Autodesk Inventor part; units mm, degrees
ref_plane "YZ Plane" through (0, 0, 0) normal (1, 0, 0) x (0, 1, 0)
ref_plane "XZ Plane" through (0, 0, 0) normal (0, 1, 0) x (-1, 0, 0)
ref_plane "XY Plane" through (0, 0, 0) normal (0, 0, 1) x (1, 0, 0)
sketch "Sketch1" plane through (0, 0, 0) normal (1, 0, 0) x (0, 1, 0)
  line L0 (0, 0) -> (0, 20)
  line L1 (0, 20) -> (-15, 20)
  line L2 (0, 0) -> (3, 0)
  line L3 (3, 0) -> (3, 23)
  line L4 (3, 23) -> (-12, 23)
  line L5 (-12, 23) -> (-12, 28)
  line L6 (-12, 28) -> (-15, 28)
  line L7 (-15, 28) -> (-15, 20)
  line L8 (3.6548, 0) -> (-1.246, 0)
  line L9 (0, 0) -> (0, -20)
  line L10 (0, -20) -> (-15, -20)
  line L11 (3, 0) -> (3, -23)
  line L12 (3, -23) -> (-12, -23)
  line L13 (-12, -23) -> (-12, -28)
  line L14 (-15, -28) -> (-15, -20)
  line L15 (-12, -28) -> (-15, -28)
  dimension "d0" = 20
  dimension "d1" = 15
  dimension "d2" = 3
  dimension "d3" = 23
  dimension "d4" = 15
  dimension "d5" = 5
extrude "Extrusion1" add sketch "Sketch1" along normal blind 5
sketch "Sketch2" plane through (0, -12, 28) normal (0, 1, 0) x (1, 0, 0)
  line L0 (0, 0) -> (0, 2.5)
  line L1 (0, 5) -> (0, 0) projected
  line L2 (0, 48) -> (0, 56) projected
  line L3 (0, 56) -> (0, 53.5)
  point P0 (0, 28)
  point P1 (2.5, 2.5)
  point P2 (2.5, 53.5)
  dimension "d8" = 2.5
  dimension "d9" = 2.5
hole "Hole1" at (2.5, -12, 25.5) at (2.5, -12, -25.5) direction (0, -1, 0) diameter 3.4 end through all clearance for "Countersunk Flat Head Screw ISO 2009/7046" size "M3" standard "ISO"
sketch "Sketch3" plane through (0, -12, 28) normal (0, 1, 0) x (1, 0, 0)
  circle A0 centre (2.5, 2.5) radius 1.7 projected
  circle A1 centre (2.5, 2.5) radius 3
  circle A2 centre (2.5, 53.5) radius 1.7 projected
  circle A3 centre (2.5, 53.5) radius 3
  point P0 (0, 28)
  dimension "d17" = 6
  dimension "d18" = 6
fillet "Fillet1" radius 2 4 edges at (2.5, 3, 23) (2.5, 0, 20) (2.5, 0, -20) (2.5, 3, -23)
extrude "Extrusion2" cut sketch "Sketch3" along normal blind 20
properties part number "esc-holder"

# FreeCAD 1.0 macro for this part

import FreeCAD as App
import Part
import Sketcher
from FreeCAD import Vector
Q = App.Units.Quantity


def edges_at(feature, points):
    """Names of the edges that pass closest to the given points."""
    edges = feature.Shape.Edges
    near = lambda p: min(range(len(edges)), key=lambda i: edges[i].distToShape(Part.Vertex(*p))[0])
    return sorted({f"Edge{near(p) + 1}" for p in points})


def add_polygon(sketch, points):
    """Adds a closed chain of lines whose ends are joined by coincident constraints."""
    first, n = sketch.GeometryCount, len(points)
    for a, b in zip(points, points[1:] + points[:1]):
        sketch.addGeometry(Part.LineSegment(App.Vector(*a, 0), App.Vector(*b, 0)), False)
    for i in range(n):
        sketch.addConstraint(Sketcher.Constraint("Coincident", first + i, 2, first + (i + 1) % n, 1))

doc = App.newDocument("Part")
body = doc.addObject("PartDesign::Body", "Body")

# Sketch on YZ plane
sketch1 = body.newObject("Sketcher::SketchObject", "Sketch")
sketch1.AttachmentSupport = (doc.getObject("YZ_Plane"), [""])
sketch1.MapMode = "FlatFace"
add_polygon(sketch1, [(0, 20), (0, -20), (-15, -20), (-15, -28), (-12, -28), (-12, -23), (3, -23), (3, 23), (-12, 23), (-12, 28), (-15, 28), (-15, 20)])  # lines 0-11
sketch1.addConstraint(Sketcher.Constraint("Vertical", 0))
sketch1.addConstraint(Sketcher.Constraint("Horizontal", 1))
sketch1.addConstraint(Sketcher.Constraint("Vertical", 2))
sketch1.addConstraint(Sketcher.Constraint("Horizontal", 3))
sketch1.addConstraint(Sketcher.Constraint("Vertical", 4))
sketch1.addConstraint(Sketcher.Constraint("Horizontal", 5))
sketch1.addConstraint(Sketcher.Constraint("Vertical", 6))
sketch1.addConstraint(Sketcher.Constraint("Horizontal", 7))
sketch1.addConstraint(Sketcher.Constraint("Vertical", 8))
sketch1.addConstraint(Sketcher.Constraint("Horizontal", 9))
sketch1.addConstraint(Sketcher.Constraint("Vertical", 10))
sketch1.addConstraint(Sketcher.Constraint("Horizontal", 11))
sketch1.addConstraint(Sketcher.Constraint("Symmetric", 0, 2, 11, 2, -1, 1))
sketch1.addConstraint(Sketcher.Constraint("Symmetric", 4, 2, 7, 2, -1))
sketch1.addConstraint(Sketcher.Constraint("Symmetric", 2, 2, 9, 2, -1))
sketch1.addConstraint(Sketcher.Constraint("Equal", 1, 5))
sketch1.addConstraint(Sketcher.Constraint("DistanceX", 1, 2, 1, 1, Q("15 mm")))
sketch1.addConstraint(Sketcher.Constraint("DistanceX", 3, 1, 3, 2, Q("3 mm")))
sketch1.addConstraint(Sketcher.Constraint("DistanceY", 4, 1, 4, 2, Q("5 mm")))
sketch1.addConstraint(Sketcher.Constraint("DistanceY", 0, 2, -1, 1, Q("20 mm")))
sketch1.addConstraint(Sketcher.Constraint("DistanceY", 4, 2, -1, 1, Q("23 mm")))
pad1 = body.newObject("PartDesign::Pad", "Pad")
pad1.Profile = sketch1
pad1.Length = 5

# Sketch on XZ plane
sketch2 = body.newObject("Sketcher::SketchObject", "Sketch001")
sketch2.AttachmentSupport = (doc.getObject("XZ_Plane"), [""])
sketch2.MapMode = "FlatFace"
sketch2.AttachmentOffset = App.Placement(Vector(0, 0, 12), App.Rotation())
sketch2.addGeometry(Part.Circle(Vector(2.5, 25.5, 0), Vector(0, 0, 1), 1.7), False)
sketch2.addGeometry(Part.Circle(Vector(2.5, -25.5, 0), Vector(0, 0, 1), 1.7), False)
sketch2.addConstraint(Sketcher.Constraint("Equal", 0, 1))
sketch2.addConstraint(Sketcher.Constraint("Symmetric", 0, 3, 1, 3, -1))
sketch2.addConstraint(Sketcher.Constraint("Diameter", 0, Q("3.4 mm")))
sketch2.addConstraint(Sketcher.Constraint("DistanceY", 1, 3, 0, 3, Q("51 mm")))
sketch2.addConstraint(Sketcher.Constraint("DistanceX", -1, 1, 0, 3, Q("2.5 mm")))
doc.recompute()
hole = body.newObject("PartDesign::Hole", "Hole")
hole.Profile = sketch2
hole.ThreadType = "None"
hole.Diameter = 3.4
hole.DepthType = "ThroughAll"
hole.Reversed = True
doc.recompute()

fillet = body.newObject("PartDesign::Fillet", "Fillet")
fillet.Base = (hole, edges_at(hole, [
    (2.5, 3, 23),
    (2.5, 0, 20),
    (2.5, 0, -20),
    (2.5, 3, -23),
]))
fillet.Radius = 2

# Sketch on XZ plane
sketch3 = body.newObject("Sketcher::SketchObject", "Sketch002")
sketch3.AttachmentSupport = (doc.getObject("XZ_Plane"), [""])
sketch3.MapMode = "FlatFace"
sketch3.AttachmentOffset = App.Placement(Vector(0, 0, 12), App.Rotation())
sketch3.addGeometry(Part.Circle(Vector(2.5, 25.5, 0), Vector(0, 0, 1), 3), False)
sketch3.addGeometry(Part.Circle(Vector(2.5, 25.5, 0), Vector(0, 0, 1), 1.7), False)
sketch3.addGeometry(Part.Circle(Vector(2.5, -25.5, 0), Vector(0, 0, 1), 3), False)
sketch3.addGeometry(Part.Circle(Vector(2.5, -25.5, 0), Vector(0, 0, 1), 1.7), False)
sketch3.addConstraint(Sketcher.Constraint("Coincident", 1, 3, 0, 3))
sketch3.addConstraint(Sketcher.Constraint("Coincident", 3, 3, 2, 3))
sketch3.addConstraint(Sketcher.Constraint("Equal", 0, 2))
sketch3.addConstraint(Sketcher.Constraint("Equal", 1, 3))
sketch3.addConstraint(Sketcher.Constraint("Symmetric", 0, 3, 2, 3, -1))
sketch3.addConstraint(Sketcher.Constraint("Diameter", 0, Q("6 mm")))
sketch3.addConstraint(Sketcher.Constraint("Diameter", 1, Q("3.4 mm")))
sketch3.addConstraint(Sketcher.Constraint("DistanceY", 2, 3, 0, 3, Q("51 mm")))
sketch3.addConstraint(Sketcher.Constraint("DistanceX", -1, 1, 0, 3, Q("2.5 mm")))
pocket1 = body.newObject("PartDesign::Pocket", "Pocket")
pocket1.Profile = sketch3
pocket1.Length = 20

doc.recompute()
